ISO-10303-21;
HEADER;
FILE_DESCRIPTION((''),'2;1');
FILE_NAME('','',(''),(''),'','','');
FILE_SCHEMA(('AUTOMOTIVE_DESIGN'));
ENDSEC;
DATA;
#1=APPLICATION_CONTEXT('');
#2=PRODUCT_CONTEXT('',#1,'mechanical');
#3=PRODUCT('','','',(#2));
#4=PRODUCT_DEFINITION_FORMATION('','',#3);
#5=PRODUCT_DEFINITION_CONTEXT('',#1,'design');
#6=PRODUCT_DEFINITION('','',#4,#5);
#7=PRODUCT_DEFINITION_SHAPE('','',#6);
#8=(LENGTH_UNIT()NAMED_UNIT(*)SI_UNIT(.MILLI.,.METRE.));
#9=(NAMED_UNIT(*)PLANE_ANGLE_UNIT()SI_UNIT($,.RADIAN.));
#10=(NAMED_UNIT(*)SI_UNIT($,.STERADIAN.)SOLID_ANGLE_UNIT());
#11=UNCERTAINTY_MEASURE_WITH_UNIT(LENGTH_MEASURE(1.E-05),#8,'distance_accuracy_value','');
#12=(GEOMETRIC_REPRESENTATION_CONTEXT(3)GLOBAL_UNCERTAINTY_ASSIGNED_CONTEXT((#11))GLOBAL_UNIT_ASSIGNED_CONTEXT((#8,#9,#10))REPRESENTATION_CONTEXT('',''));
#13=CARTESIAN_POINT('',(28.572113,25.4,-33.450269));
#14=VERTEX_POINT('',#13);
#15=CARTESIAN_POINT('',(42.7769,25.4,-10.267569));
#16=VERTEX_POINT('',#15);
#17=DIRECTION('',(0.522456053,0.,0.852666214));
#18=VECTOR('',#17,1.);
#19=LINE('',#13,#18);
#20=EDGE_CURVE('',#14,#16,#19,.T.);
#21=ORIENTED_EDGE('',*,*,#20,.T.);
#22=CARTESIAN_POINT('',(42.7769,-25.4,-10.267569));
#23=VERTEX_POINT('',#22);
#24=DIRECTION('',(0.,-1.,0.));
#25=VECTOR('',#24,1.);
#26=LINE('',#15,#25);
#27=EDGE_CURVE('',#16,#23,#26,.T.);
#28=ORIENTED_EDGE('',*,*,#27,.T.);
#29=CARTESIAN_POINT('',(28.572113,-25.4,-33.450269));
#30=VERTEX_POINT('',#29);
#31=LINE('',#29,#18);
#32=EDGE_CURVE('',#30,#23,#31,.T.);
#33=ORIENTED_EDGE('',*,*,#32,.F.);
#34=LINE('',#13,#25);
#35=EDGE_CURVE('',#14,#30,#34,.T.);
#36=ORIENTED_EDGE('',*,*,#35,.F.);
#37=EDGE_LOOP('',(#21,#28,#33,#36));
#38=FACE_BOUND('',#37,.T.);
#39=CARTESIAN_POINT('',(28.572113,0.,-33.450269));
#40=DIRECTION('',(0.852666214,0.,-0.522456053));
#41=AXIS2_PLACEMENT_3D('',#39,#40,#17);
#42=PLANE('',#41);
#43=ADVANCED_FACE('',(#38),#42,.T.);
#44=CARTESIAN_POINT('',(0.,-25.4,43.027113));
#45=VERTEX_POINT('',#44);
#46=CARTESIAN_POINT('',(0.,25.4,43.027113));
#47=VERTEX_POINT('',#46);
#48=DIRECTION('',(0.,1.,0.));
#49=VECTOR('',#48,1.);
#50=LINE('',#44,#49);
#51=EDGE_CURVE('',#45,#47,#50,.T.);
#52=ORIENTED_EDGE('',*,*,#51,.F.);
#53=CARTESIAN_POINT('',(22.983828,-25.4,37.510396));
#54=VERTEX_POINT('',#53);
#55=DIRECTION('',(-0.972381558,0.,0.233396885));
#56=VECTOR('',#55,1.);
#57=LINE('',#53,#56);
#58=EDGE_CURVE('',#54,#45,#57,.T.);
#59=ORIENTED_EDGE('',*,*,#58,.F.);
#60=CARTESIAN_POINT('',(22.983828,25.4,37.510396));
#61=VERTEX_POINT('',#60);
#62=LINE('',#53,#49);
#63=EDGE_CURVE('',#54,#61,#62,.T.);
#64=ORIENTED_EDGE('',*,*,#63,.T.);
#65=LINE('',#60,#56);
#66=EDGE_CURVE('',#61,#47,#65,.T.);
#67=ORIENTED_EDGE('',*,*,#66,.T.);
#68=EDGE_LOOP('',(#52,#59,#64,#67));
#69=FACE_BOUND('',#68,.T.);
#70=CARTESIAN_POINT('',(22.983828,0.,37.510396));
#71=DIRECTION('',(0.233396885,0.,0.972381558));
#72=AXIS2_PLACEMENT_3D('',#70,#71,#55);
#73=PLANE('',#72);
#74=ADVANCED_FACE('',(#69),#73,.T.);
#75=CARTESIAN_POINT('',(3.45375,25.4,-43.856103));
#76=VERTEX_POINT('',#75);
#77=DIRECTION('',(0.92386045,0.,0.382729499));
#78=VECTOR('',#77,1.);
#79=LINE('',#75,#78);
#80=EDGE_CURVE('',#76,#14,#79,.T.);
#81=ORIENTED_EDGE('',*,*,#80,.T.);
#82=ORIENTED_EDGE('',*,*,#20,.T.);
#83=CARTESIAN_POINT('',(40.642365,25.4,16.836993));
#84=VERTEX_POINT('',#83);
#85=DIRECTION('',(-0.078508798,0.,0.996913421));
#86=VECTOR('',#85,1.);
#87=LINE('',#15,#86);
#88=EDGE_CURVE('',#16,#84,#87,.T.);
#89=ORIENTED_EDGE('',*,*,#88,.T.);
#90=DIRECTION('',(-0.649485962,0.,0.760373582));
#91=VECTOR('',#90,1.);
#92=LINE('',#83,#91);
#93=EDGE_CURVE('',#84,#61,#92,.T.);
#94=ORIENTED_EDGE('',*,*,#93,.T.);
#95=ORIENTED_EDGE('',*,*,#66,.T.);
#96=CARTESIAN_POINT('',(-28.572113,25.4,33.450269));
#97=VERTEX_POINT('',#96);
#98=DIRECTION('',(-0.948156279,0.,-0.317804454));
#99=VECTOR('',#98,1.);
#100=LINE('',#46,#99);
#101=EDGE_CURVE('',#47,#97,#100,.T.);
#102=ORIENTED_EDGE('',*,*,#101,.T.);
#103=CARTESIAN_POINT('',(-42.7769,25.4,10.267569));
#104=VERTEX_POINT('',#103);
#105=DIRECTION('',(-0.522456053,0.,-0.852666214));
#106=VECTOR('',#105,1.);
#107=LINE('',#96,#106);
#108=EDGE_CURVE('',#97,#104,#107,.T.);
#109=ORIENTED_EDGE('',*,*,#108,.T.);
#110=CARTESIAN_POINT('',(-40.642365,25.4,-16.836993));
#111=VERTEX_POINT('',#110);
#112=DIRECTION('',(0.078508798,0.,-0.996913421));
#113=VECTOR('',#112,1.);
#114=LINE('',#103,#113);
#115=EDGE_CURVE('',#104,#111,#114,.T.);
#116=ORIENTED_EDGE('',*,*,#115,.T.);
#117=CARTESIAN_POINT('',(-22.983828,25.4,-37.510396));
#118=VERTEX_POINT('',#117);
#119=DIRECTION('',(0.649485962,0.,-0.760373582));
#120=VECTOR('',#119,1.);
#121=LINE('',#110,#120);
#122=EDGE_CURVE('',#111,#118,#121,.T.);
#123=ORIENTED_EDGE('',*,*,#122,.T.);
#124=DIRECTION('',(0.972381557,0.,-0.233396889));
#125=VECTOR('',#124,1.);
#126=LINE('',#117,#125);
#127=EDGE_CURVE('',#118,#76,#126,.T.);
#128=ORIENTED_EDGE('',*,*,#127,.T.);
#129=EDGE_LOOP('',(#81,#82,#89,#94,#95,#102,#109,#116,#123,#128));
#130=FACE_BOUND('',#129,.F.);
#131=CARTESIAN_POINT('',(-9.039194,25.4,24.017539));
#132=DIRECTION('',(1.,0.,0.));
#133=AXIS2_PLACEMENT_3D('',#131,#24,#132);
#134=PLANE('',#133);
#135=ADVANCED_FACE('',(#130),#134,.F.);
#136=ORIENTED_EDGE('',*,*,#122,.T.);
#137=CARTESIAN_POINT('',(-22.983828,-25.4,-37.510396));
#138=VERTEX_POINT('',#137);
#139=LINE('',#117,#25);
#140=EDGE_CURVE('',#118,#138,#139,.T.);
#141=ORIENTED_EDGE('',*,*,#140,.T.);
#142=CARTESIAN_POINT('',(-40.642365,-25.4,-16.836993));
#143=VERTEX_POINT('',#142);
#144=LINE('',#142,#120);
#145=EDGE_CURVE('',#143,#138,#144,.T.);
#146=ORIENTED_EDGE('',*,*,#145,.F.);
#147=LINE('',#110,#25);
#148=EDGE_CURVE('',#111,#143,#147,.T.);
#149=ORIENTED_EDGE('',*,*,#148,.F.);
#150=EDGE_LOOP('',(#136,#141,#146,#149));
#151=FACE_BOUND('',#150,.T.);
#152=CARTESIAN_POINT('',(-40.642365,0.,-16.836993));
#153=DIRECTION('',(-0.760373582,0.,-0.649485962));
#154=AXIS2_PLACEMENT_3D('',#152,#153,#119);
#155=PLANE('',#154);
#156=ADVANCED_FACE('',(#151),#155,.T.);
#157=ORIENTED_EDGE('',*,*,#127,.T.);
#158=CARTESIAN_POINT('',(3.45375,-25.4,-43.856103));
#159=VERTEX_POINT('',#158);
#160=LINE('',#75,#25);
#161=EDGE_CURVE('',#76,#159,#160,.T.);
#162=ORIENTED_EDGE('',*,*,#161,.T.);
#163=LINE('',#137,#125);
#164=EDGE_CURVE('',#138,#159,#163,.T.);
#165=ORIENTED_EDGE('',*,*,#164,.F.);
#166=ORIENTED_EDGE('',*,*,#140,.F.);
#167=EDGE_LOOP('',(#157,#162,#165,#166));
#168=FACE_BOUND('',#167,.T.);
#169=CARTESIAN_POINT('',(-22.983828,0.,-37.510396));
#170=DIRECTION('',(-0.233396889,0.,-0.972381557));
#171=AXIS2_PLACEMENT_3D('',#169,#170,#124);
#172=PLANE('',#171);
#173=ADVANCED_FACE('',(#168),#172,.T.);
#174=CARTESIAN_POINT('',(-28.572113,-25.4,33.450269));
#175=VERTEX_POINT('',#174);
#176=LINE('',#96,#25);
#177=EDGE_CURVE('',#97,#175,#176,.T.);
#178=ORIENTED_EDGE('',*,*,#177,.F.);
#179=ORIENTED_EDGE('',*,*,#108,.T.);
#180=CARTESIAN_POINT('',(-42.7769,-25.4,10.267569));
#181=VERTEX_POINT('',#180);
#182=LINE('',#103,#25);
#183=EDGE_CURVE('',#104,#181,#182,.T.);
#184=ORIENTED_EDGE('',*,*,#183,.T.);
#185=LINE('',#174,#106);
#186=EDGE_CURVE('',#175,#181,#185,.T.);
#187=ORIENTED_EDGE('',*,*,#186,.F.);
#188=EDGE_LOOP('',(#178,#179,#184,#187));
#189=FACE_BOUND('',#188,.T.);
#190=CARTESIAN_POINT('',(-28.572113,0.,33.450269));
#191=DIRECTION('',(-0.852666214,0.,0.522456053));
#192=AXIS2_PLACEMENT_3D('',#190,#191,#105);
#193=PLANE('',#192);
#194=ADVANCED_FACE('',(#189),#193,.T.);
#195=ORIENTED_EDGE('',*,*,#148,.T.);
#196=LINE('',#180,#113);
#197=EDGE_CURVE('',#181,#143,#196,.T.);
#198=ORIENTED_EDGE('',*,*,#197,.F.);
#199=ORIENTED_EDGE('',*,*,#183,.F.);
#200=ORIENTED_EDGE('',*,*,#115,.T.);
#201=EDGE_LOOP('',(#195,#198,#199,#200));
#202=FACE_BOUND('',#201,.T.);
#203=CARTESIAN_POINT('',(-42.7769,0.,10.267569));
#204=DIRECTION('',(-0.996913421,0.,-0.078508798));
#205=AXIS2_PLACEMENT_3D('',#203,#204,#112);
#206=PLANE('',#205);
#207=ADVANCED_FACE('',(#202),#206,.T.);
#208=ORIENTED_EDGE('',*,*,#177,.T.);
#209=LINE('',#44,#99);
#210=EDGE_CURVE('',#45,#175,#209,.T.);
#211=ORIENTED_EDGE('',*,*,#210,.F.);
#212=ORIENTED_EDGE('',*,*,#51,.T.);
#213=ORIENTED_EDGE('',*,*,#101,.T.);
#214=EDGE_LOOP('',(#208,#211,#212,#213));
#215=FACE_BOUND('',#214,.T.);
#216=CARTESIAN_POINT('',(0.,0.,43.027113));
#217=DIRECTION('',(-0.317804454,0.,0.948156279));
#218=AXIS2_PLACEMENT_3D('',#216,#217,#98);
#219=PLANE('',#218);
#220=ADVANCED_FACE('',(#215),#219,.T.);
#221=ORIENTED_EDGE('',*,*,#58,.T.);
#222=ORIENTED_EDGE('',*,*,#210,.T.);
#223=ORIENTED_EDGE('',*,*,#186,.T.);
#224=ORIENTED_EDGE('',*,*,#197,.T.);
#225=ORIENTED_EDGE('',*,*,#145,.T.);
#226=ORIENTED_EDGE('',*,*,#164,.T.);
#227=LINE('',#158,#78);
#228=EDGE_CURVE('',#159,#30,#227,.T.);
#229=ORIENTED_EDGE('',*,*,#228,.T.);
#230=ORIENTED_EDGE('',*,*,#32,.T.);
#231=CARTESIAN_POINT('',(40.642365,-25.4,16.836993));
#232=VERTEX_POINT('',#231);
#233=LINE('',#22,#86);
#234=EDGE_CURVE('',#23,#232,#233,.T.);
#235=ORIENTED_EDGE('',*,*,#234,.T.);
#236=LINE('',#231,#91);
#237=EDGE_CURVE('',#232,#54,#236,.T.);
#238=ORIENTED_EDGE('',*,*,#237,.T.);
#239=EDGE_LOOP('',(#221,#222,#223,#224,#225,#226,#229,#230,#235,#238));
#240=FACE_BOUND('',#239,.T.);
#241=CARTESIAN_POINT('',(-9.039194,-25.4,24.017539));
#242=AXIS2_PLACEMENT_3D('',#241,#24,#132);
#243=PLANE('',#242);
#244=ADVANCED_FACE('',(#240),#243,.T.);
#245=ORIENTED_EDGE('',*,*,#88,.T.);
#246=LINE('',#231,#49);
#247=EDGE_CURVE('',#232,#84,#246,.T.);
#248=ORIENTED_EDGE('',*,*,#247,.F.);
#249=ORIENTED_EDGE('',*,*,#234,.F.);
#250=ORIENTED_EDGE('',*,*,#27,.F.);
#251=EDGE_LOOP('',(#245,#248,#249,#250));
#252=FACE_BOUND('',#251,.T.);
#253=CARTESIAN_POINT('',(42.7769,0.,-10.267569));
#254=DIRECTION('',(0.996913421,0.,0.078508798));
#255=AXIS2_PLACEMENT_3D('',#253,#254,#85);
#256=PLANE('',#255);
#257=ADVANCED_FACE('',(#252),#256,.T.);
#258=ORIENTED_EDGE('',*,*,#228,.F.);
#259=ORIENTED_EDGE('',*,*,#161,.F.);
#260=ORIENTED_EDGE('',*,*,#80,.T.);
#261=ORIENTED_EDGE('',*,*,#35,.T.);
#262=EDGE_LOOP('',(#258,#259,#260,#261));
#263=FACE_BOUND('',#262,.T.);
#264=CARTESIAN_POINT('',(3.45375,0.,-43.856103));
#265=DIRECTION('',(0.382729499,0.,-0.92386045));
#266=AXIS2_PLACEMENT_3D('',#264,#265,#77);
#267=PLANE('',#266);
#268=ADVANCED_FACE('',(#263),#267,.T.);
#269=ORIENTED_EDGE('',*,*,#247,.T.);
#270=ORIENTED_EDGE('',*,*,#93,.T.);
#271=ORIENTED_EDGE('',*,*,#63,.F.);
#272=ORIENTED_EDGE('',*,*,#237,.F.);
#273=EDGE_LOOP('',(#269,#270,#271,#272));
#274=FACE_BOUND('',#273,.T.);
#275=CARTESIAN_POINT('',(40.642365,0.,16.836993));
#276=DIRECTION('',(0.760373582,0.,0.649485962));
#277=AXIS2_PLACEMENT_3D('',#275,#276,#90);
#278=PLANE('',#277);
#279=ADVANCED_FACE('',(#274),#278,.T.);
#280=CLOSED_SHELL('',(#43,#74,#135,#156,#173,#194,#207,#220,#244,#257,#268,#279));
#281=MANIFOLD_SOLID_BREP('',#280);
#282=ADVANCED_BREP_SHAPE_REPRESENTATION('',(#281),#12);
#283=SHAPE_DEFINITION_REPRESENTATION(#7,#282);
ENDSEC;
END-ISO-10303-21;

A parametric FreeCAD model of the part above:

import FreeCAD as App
import Part
import Sketcher

V = App.Vector

doc = App.newDocument("Part")
params = doc.addObject("Spreadsheet::Sheet", "Params")
for row, (alias, value) in enumerate([
    ("pad1_length", "2 in"),
], start=1):
    params.set(f"A{row}", alias)
    params.set(f"B{row}", "=" + value)
    params.setAlias(f"B{row}", alias)

body = doc.addObject("PartDesign::Body", "Body")

# Sketch on XZ plane
sketch1 = body.newObject("Sketcher::SketchObject", "Sketch")
sketch1.AttachmentSupport = (doc.getObject("XZ_Plane"), [""])
sketch1.MapMode = "FlatFace"
sketch1.addGeometry([
    Part.LineSegment(V(0, 43, 0), V(-29, 33, 0)),  # 0
    Part.LineSegment(V(-29, 33, 0), V(-43, 10, 0)),  # 1
    Part.LineSegment(V(-43, 10, 0), V(-41, -17, 0)),  # 2
    Part.LineSegment(V(-41, -17, 0), V(-23, -38, 0)),  # 3
    Part.LineSegment(V(-23, -38, 0), V(3, -44, 0)),  # 4
    Part.LineSegment(V(3, -44, 0), V(29, -33, 0)),  # 5
    Part.LineSegment(V(29, -33, 0), V(43, -10, 0)),  # 6
    Part.LineSegment(V(43, -10, 0), V(41, 17, 0)),  # 7
    Part.LineSegment(V(41, 17, 0), V(23, 38, 0)),  # 8
    Part.LineSegment(V(23, 38, 0), V(0, 43, 0)),  # 9
], False)
sketch1.addConstraint([
    Sketcher.Constraint("Coincident", 0, 2, 1, 1),
    Sketcher.Constraint("Coincident", 1, 2, 2, 1),
    Sketcher.Constraint("Coincident", 2, 2, 3, 1),
    Sketcher.Constraint("Coincident", 3, 2, 4, 1),
    Sketcher.Constraint("Coincident", 4, 2, 5, 1),
    Sketcher.Constraint("Coincident", 5, 2, 6, 1),
    Sketcher.Constraint("Coincident", 6, 2, 7, 1),
    Sketcher.Constraint("Coincident", 7, 2, 8, 1),
    Sketcher.Constraint("Coincident", 8, 2, 9, 1),
    Sketcher.Constraint("Coincident", 9, 2, 0, 1),
    Sketcher.Constraint("Symmetric", 0, 2, 5, 2, -1, 1),
    Sketcher.Constraint("Symmetric", 1, 2, 6, 2, -1, 1),
    Sketcher.Constraint("Symmetric", 2, 2, 7, 2, -1, 1),
    Sketcher.Constraint("Symmetric", 3, 2, 8, 2, -1, 1),
    Sketcher.Constraint("PointOnObject", 9, 2, -2),
    Sketcher.Constraint("Parallel", 4, 9),
    Sketcher.Constraint("Equal", 1, 2),
    Sketcher.Constraint("Equal", 2, 3),
    Sketcher.Constraint("Equal", 3, 4),
    Sketcher.Constraint("Equal", 4, 5),
    Sketcher.Constraint("DistanceX", 1, 2, -1, 1, 42.7769),
    Sketcher.Constraint("DistanceY", 1, 2, 0, 2, 23.1827),
    Sketcher.Constraint("Distance", 1, 27.188482),
    Sketcher.Constraint("DistanceY", -1, 1, 0, 2, 33.450269),
    Sketcher.Constraint("DistanceX", -1, 1, 4, 2, 3.45375),
    Sketcher.Constraint("DistanceX", 2, 2, 0, 2, 12.070252),
])
pad1 = body.newObject("PartDesign::Pad", "Pad")
pad1.Profile = sketch1
pad1.setExpression("Length", "Params.pad1_length")
pad1.Midplane = True

doc.recompute()
